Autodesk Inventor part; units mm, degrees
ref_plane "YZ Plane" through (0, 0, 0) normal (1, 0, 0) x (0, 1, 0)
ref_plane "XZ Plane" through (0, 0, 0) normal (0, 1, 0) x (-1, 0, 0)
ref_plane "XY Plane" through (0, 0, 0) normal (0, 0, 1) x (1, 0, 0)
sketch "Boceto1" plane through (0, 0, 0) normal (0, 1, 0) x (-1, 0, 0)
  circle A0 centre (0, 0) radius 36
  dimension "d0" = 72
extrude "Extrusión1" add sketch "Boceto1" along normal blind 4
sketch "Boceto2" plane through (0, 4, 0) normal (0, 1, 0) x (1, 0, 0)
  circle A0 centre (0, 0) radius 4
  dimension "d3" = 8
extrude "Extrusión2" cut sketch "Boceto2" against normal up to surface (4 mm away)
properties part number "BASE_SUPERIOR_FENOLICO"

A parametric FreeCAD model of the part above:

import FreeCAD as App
import Part
import Sketcher
from FreeCAD import Vector
Q = App.Units.Quantity

doc = App.newDocument("Part")
body = doc.addObject("PartDesign::Body", "Body")

# Sketch on XZ plane
sketch1 = doc.addObject("Sketcher::SketchObject", "Sketch")
body.addObject(sketch1)
sketch1.AttachmentSupport = (doc.XZ_Plane, [""])
sketch1.MapMode = "FlatFace"
sketch1.addGeometry(Part.Circle(Vector(0, 0, 0), Vector(0, 0, 1), 36), False)
sketch1.addConstraint(Sketcher.Constraint("Coincident", 0, 3, -1, 1))
sketch1.addConstraint(Sketcher.Constraint("Diameter", 0, Q("72 mm")))
pad1 = doc.addObject("PartDesign::Pad", "Pad")
body.addObject(pad1)
pad1.Profile = sketch1
pad1.Length = 4
pad1.Reversed = True

# Sketch on XZ plane
sketch2 = doc.addObject("Sketcher::SketchObject", "Sketch001")
body.addObject(sketch2)
sketch2.AttachmentSupport = (doc.XZ_Plane, [""])
sketch2.MapMode = "FlatFace"
sketch2.AttachmentOffset = App.Placement(Vector(0, 0, -4), App.Rotation())
sketch2.addGeometry(Part.Circle(Vector(0, 0, 0), Vector(0, 0, 1), 4), False)
sketch2.addConstraint(Sketcher.Constraint("Coincident", 0, 3, -1, 1))
sketch2.addConstraint(Sketcher.Constraint("Diameter", 0, Q("8 mm")))
pocket1 = doc.addObject("PartDesign::Pocket", "Pocket")
body.addObject(pocket1)
pocket1.Profile = sketch2
pocket1.Length = 4
pocket1.Reversed = True

doc.recompute()
